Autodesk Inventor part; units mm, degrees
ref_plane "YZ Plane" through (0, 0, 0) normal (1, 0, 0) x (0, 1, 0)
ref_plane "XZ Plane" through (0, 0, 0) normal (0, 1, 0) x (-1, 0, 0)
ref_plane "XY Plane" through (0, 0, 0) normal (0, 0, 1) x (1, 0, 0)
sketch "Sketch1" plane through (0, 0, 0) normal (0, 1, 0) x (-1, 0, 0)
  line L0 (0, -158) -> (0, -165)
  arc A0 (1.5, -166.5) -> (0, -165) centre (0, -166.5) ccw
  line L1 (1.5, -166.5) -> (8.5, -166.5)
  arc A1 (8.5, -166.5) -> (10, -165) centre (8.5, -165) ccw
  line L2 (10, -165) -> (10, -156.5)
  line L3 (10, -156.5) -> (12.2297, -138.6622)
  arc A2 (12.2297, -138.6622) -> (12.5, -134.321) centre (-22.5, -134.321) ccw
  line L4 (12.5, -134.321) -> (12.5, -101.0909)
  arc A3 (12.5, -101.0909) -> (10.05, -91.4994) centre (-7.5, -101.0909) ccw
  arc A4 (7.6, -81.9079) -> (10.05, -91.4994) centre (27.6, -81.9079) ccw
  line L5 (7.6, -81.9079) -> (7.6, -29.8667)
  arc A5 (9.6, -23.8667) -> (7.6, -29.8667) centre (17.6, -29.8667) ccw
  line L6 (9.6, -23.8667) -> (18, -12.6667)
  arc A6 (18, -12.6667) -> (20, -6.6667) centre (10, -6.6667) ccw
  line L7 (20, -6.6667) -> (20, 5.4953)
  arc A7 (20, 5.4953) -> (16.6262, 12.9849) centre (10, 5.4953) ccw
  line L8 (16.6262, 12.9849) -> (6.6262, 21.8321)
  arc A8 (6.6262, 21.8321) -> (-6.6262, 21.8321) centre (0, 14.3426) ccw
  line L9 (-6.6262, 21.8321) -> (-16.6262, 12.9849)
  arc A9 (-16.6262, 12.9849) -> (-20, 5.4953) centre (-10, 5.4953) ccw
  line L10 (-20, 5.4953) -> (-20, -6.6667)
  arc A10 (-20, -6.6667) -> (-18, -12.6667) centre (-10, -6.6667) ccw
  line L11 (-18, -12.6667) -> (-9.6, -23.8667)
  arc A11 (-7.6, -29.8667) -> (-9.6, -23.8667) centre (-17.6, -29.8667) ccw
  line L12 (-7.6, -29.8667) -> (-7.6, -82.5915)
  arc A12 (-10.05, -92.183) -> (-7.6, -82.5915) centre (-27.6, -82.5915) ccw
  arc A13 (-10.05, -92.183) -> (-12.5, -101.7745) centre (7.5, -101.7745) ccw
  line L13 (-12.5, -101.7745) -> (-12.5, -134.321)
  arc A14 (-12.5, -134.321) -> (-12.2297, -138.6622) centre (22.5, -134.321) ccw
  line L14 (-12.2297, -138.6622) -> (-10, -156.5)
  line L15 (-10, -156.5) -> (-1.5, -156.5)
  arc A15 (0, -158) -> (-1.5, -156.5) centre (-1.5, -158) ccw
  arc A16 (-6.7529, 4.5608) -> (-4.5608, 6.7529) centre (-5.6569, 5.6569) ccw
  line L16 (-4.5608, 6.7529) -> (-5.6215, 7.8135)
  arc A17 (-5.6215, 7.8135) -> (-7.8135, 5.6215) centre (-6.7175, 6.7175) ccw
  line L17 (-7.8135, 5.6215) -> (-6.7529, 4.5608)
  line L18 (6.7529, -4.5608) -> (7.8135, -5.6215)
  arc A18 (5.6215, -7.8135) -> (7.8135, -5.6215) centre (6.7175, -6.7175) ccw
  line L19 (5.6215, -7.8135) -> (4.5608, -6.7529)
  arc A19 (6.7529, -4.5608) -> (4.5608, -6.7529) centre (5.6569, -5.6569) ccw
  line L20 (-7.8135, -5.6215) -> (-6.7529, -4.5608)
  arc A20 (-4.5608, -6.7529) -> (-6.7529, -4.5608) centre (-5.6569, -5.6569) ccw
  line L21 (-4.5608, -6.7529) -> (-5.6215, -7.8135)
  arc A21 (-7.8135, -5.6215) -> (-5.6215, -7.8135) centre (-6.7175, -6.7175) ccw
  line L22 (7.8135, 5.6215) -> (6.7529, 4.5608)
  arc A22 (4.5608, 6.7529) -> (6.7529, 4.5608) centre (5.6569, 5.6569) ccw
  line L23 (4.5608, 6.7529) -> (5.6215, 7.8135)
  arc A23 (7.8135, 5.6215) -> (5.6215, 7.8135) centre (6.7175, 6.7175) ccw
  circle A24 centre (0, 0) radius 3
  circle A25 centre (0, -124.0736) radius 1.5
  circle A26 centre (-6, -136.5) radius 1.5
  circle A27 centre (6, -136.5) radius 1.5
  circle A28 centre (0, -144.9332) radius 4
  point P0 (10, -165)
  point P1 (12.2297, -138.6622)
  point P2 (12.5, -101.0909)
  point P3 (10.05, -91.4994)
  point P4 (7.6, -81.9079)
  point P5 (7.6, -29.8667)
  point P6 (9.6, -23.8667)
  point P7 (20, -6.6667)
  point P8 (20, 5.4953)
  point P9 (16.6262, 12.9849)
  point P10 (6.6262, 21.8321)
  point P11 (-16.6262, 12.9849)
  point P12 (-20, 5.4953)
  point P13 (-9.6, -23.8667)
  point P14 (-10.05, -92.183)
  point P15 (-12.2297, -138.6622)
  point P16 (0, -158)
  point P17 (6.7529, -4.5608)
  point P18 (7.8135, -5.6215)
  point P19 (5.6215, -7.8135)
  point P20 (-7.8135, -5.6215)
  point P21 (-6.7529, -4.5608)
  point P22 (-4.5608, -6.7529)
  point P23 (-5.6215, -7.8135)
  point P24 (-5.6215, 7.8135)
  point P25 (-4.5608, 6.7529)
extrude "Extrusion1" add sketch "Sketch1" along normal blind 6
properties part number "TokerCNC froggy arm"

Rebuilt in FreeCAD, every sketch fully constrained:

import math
import FreeCAD as App
import Part
import Sketcher
from FreeCAD import Vector
Q = App.Units.Quantity

doc = App.newDocument("Part")
body = doc.addObject("PartDesign::Body", "Body")

# Sketch on XZ plane
sketch1 = body.newObject("Sketcher::SketchObject", "Sketch")
sketch1.AttachmentSupport = (doc.getObject("XZ_Plane"), [""])
sketch1.MapMode = "FlatFace"
sketch1.addGeometry([
    Part.ArcOfCircle(Part.Circle(Vector(1.5, -158, 0), Vector(0, 0, 1), 1.5), math.radians(90), math.radians(180)),  # 0
    Part.LineSegment(Vector(0, -158, 0), Vector(0, -165, 0)),  # 1
    Part.ArcOfCircle(Part.Circle(Vector(0, -166.5, 0), Vector(0, 0, 1), 1.5), math.radians(90), math.radians(180)),  # 2
    Part.LineSegment(Vector(-1.5, -166.5, 0), Vector(-8.5, -166.5, 0)),  # 3
    Part.ArcOfCircle(Part.Circle(Vector(-8.5, -165, 0), Vector(0, 0, 1), 1.5), math.radians(180), math.radians(270)),  # 4
    Part.LineSegment(Vector(-10, -165, 0), Vector(-10, -156.5, 0)),  # 5
    Part.LineSegment(Vector(-10, -156.5, 0), Vector(-12.2297, -138.6622, 0)),  # 6
    Part.ArcOfCircle(Part.Circle(Vector(22.507073, -134.320338, 0), Vector(0, 0, 1), 35.007073), math.radians(-179.998917), math.radians(-172.875365)),  # 7
    Part.LineSegment(Vector(-12.5, -134.321, 0), Vector(-12.5, -101.0909, 0)),  # 8
    Part.ArcOfCircle(Part.Circle(Vector(7.5, -101.0909, 0), Vector(0, 0, 1), 20), math.radians(151.342327), math.radians(180)),  # 9
    Part.ArcOfCircle(Part.Circle(Vector(-27.6, -81.9079, 0), Vector(0, 0, 1), 20), math.radians(-28.657673), math.radians(0)),  # 10
    Part.LineSegment(Vector(-7.6, -81.9079, 0), Vector(-7.6, -29.8667, 0)),  # 11
    Part.ArcOfCircle(Part.Circle(Vector(-17.6, -29.8667, 0), Vector(0, 0, 1), 10), math.radians(0), math.radians(36.869898)),  # 12
    Part.LineSegment(Vector(-9.6, -23.8667, 0), Vector(-18, -12.6667, 0)),  # 13
    Part.ArcOfCircle(Part.Circle(Vector(-10, -6.6667, 0), Vector(0, 0, 1), 10), math.radians(180), math.radians(216.869898)),  # 14
    Part.LineSegment(Vector(-20, -6.6667, 0), Vector(-20, 5.4953, 0)),  # 15
    Part.ArcOfCircle(Part.Circle(Vector(-10, 5.4953, 0), Vector(0, 0, 1), 10), math.radians(131.499835), math.radians(180)),  # 16
    Part.LineSegment(Vector(-16.6262, 12.9849, 0), Vector(-6.6262, 21.8321, 0)),  # 17
    Part.ArcOfCircle(Part.Circle(Vector(0, 14.3426, 0), Vector(0, 0, 1), 9.999957), math.radians(48.499785), math.radians(131.500215)),  # 18
    Part.LineSegment(Vector(6.6262, 21.8321, 0), Vector(16.6262, 12.9849, 0)),  # 19
    Part.ArcOfCircle(Part.Circle(Vector(10, 5.4953, 0), Vector(0, 0, 1), 10.000032), math.radians(0), math.radians(48.500165)),  # 20
    Part.LineSegment(Vector(20, 5.4953, 0), Vector(20, -6.6667, 0)),  # 21
    Part.ArcOfCircle(Part.Circle(Vector(10, -6.6667, 0), Vector(0, 0, 1), 10), math.radians(-36.869898), math.radians(0)),  # 22
    Part.LineSegment(Vector(18, -12.6667, 0), Vector(9.6, -23.8667, 0)),  # 23
    Part.ArcOfCircle(Part.Circle(Vector(17.6, -29.8667, 0), Vector(0, 0, 1), 10), math.radians(143.130102), math.radians(180)),  # 24
    Part.LineSegment(Vector(7.6, -29.8667, 0), Vector(7.6, -82.5915, 0)),  # 25
    Part.ArcOfCircle(Part.Circle(Vector(27.6, -82.5915, 0), Vector(0, 0, 1), 19.999984), math.radians(180), math.radians(208.657673)),  # 26
    Part.ArcOfCircle(Part.Circle(Vector(-7.5, -101.7745, 0), Vector(0, 0, 1), 19.999984), math.radians(0), math.radians(28.657673)),  # 27
    Part.LineSegment(Vector(12.5, -101.7745, 0), Vector(12.5, -134.321, 0)),  # 28
    Part.ArcOfCircle(Part.Circle(Vector(-22.492903, -134.321221, 0), Vector(0, 0, 1), 34.992903), math.radians(-7.126079), math.radians(0.000361)),  # 29
    Part.LineSegment(Vector(12.2297, -138.6622, 0), Vector(10, -156.5, 0)),  # 30
    Part.LineSegment(Vector(10, -156.5, 0), Vector(1.5, -156.5, 0)),  # 31
    Part.Circle(Vector(6, -136.5, 0), Vector(0, 0, 1), 1.5),  # 32
    Part.Circle(Vector(0, -144.9332, 0), Vector(0, 0, 1), 4),  # 33
    Part.Circle(Vector(0, -124.0736, 0), Vector(0, 0, 1), 1.5),  # 34
    Part.Circle(Vector(-6, -136.5, 0), Vector(0, 0, 1), 1.5),  # 35
    Part.ArcOfCircle(Part.Circle(Vector(6.7175, -6.7175, 0), Vector(0, 0, 1), 1.549978), math.radians(-135), math.radians(45)),  # 36
    Part.LineSegment(Vector(7.8135, -5.6215, 0), Vector(6.7529, -4.5608, 0)),  # 37
    Part.ArcOfCircle(Part.Circle(Vector(5.6569, -5.6569, 0), Vector(0, 0, 1), 1.550049), math.radians(45.002614), math.radians(224.997386)),  # 38
    Part.LineSegment(Vector(4.5608, -6.7529, 0), Vector(5.6215, -7.8135, 0)),  # 39
    Part.ArcOfCircle(Part.Circle(Vector(5.6569, 5.6569, 0), Vector(0, 0, 1), 1.550049), math.radians(135.002614), math.radians(314.997386)),  # 40
    Part.LineSegment(Vector(6.7529, 4.5608, 0), Vector(7.8135, 5.6215, 0)),  # 41
    Part.ArcOfCircle(Part.Circle(Vector(6.7175, 6.7175, 0), Vector(0, 0, 1), 1.549978), math.radians(-45), math.radians(135)),  # 42
    Part.LineSegment(Vector(5.6215, 7.8135, 0), Vector(4.5608, 6.7529, 0)),  # 43
    Part.Circle(Vector(0, 0, 0), Vector(0, 0, 1), 3),  # 44
    Part.ArcOfCircle(Part.Circle(Vector(-5.6569, -5.6569, 0), Vector(0, 0, 1), 1.550049), math.radians(-44.997386), math.radians(134.997386)),  # 45
    Part.LineSegment(Vector(-6.7529, -4.5608, 0), Vector(-7.8135, -5.6215, 0)),  # 46
    Part.ArcOfCircle(Part.Circle(Vector(-6.7175, -6.7175, 0), Vector(0, 0, 1), 1.549978), math.radians(135), math.radians(315)),  # 47
    Part.LineSegment(Vector(-5.6215, -7.8135, 0), Vector(-4.5608, -6.7529, 0)),  # 48
    Part.ArcOfCircle(Part.Circle(Vector(-6.7175, 6.7175, 0), Vector(0, 0, 1), 1.549978), math.radians(45), math.radians(225)),  # 49
    Part.LineSegment(Vector(-7.8135, 5.6215, 0), Vector(-6.7529, 4.5608, 0)),  # 50
    Part.ArcOfCircle(Part.Circle(Vector(-5.6569, 5.6569, 0), Vector(0, 0, 1), 1.550049), math.radians(-134.997386), math.radians(44.997386)),  # 51
    Part.LineSegment(Vector(-4.5608, 6.7529, 0), Vector(-5.6215, 7.8135, 0)),  # 52
], False)
sketch1.addConstraint([
    Sketcher.Constraint("Coincident", 0, 2, 1, 1),
    Sketcher.Constraint("Coincident", 1, 2, 2, 1),
    Sketcher.Constraint("Coincident", 2, 2, 3, 1),
    Sketcher.Constraint("Coincident", 3, 2, 4, 2),
    Sketcher.Constraint("Coincident", 4, 1, 5, 1),
    Sketcher.Constraint("Coincident", 5, 2, 6, 1),
    Sketcher.Constraint("Coincident", 6, 2, 7, 2),
    Sketcher.Constraint("Coincident", 7, 1, 8, 1),
    Sketcher.Constraint("Coincident", 8, 2, 9, 2),
    Sketcher.Constraint("Coincident", 9, 1, 10, 1),
    Sketcher.Constraint("Coincident", 10, 2, 11, 1),
    Sketcher.Constraint("Coincident", 11, 2, 12, 1),
    Sketcher.Constraint("Coincident", 12, 2, 13, 1),
    Sketcher.Constraint("Coincident", 13, 2, 14, 2),
    Sketcher.Constraint("Coincident", 14, 1, 15, 1),
    Sketcher.Constraint("Coincident", 15, 2, 16, 2),
    Sketcher.Constraint("Coincident", 16, 1, 17, 1),
    Sketcher.Constraint("Coincident", 17, 2, 18, 2),
    Sketcher.Constraint("Coincident", 18, 1, 19, 1),
    Sketcher.Constraint("Coincident", 19, 2, 20, 2),
    Sketcher.Constraint("Coincident", 20, 1, 21, 1),
    Sketcher.Constraint("Coincident", 21, 2, 22, 2),
    Sketcher.Constraint("Coincident", 22, 1, 23, 1),
    Sketcher.Constraint("Coincident", 23, 2, 24, 1),
    Sketcher.Constraint("Coincident", 24, 2, 25, 1),
    Sketcher.Constraint("Coincident", 25, 2, 26, 1),
    Sketcher.Constraint("Coincident", 26, 2, 27, 2),
    Sketcher.Constraint("Coincident", 27, 1, 28, 1),
    Sketcher.Constraint("Coincident", 28, 2, 29, 2),
    Sketcher.Constraint("Coincident", 29, 1, 30, 1),
    Sketcher.Constraint("Coincident", 30, 2, 31, 1),
    Sketcher.Constraint("Coincident", 31, 2, 0, 1),
    Sketcher.Constraint("Coincident", 36, 2, 37, 1),
    Sketcher.Constraint("Coincident", 37, 2, 38, 1),
    Sketcher.Constraint("Coincident", 38, 2, 39, 1),
    Sketcher.Constraint("Coincident", 39, 2, 36, 1),
    Sketcher.Constraint("Coincident", 40, 2, 41, 1),
    Sketcher.Constraint("Coincident", 41, 2, 42, 1),
    Sketcher.Constraint("Coincident", 42, 2, 43, 1),
    Sketcher.Constraint("Coincident", 43, 2, 40, 1),
    Sketcher.Constraint("Coincident", 45, 2, 46, 1),
    Sketcher.Constraint("Coincident", 46, 2, 47, 1),
    Sketcher.Constraint("Coincident", 47, 2, 48, 1),
    Sketcher.Constraint("Coincident", 48, 2, 45, 1),
    Sketcher.Constraint("Coincident", 49, 2, 50, 1),
    Sketcher.Constraint("Coincident", 50, 2, 51, 1),
    Sketcher.Constraint("Coincident", 51, 2, 52, 1),
    Sketcher.Constraint("Coincident", 52, 2, 49, 1),
    Sketcher.Constraint("Vertical", 1),
    Sketcher.Constraint("Horizontal", 3),
    Sketcher.Constraint("Vertical", 5),
    Sketcher.Constraint("Vertical", 8),
    Sketcher.Constraint("Vertical", 11),
    Sketcher.Constraint("Vertical", 15),
    Sketcher.Constraint("Vertical", 21),
    Sketcher.Constraint("Vertical", 25),
    Sketcher.Constraint("Vertical", 28),
    Sketcher.Constraint("Horizontal", 31),
    Sketcher.Constraint("Coincident", 44, 3, -1, 1),
    Sketcher.Constraint("PointOnObject", 2, 3, -2),
    Sketcher.Constraint("PointOnObject", 18, 3, -2),
    Sketcher.Constraint("PointOnObject", 33, 3, -2),
    Sketcher.Constraint("PointOnObject", 34, 3, -2),
    Sketcher.Constraint("PointOnObject", 0, 2, -2),
    Sketcher.Constraint("Diameter", 32, Q("3 mm")),
    Sketcher.Constraint("Diameter", 33, Q("8 mm")),
    Sketcher.Constraint("Diameter", 34, Q("3 mm")),
    Sketcher.Constraint("Diameter", 35, Q("3 mm")),
    Sketcher.Constraint("Diameter", 44, Q("6 mm")),
    Sketcher.Constraint("Radius", 9, Q("20 mm")),
    Sketcher.Constraint("Radius", 10, Q("20 mm")),
    Sketcher.Constraint("Radius", 12, Q("10 mm")),
    Sketcher.Constraint("Radius", 14, Q("10 mm")),
    Sketcher.Constraint("Radius", 16, Q("10 mm")),
    Sketcher.Constraint("Radius", 18, Q("10 mm")),
    Sketcher.Constraint("Radius", 20, Q("10 mm")),
    Sketcher.Constraint("Radius", 22, Q("10 mm")),
    Sketcher.Constraint("Radius", 24, Q("10 mm")),
    Sketcher.Constraint("Radius", 26, Q("20 mm")),
    Sketcher.Constraint("Radius", 27, Q("20 mm")),
    Sketcher.Constraint("Radius", 0, Q("1.5 mm")),
    Sketcher.Constraint("Radius", 2, Q("1.5 mm")),
    Sketcher.Constraint("Radius", 4, Q("1.5 mm")),
    Sketcher.Constraint("DistanceX", 3, 2, 3, 1, Q("7 mm")),
    Sketcher.Constraint("DistanceY", 1, 2, 1, 1, Q("7 mm")),
    Sketcher.Constraint("Radius", 36, Q("1.55 mm")),
    Sketcher.Constraint("Radius", 38, Q("1.55 mm")),
    Sketcher.Constraint("Radius", 40, Q("1.55 mm")),
    Sketcher.Constraint("Radius", 42, Q("1.55 mm")),
    Sketcher.Constraint("Radius", 45, Q("1.55 mm")),
    Sketcher.Constraint("Radius", 47, Q("1.55 mm")),
    Sketcher.Constraint("Radius", 49, Q("1.55 mm")),
    Sketcher.Constraint("Radius", 51, Q("1.55 mm")),
    Sketcher.Constraint("Distance", 13, Q("14 mm")),
    Sketcher.Constraint("Distance", 23, Q("14 mm")),
    Sketcher.Constraint("DistanceX", 31, 2, 31, 1, Q("8.5 mm")),
    Sketcher.Constraint("DistanceY", 5, 1, 5, 2, Q("8.5 mm")),
    Sketcher.Constraint("DistanceY", 0, 3, -1, 1, Q("158 mm")),
    Sketcher.Constraint("DistanceY", 4, 3, -1, 1, Q("165 mm")),
    Sketcher.Constraint("DistanceX", 14, 3, -1, 1, Q("10 mm")),
    Sketcher.Constraint("DistanceX", -1, 1, 20, 3, Q("10 mm")),
    Sketcher.Constraint("DistanceX", -1, 1, 32, 3, Q("6 mm")),
    Sketcher.Constraint("DistanceX", 35, 3, -1, 1, Q("6 mm")),
    Sketcher.Constraint("DistanceY", 0, 2, -1, 1, Q("158 mm")),
    Sketcher.Constraint("DistanceX", 4, 1, -1, 1, Q("10 mm")),
    Sketcher.Constraint("DistanceY", 4, 1, -1, 1, Q("165 mm")),
    Sketcher.Constraint("DistanceX", 13, 2, -1, 1, Q("18 mm")),
    Sketcher.Constraint("DistanceX", -1, 1, 22, 1, Q("18 mm")),
    Sketcher.Constraint("DistanceX", -1, 1, 30, 2, Q("10 mm")),
    Sketcher.Constraint("Radius", 7, Q("35.007 mm")),
    Sketcher.Constraint("Radius", 29, Q("34.993 mm")),
    Sketcher.Constraint("Distance", 37, Q("1.5 mm")),
    Sketcher.Constraint("Distance", 39, Q("1.5 mm")),
    Sketcher.Constraint("Distance", 41, Q("1.5 mm")),
    Sketcher.Constraint("Distance", 43, Q("1.5 mm")),
    Sketcher.Constraint("Distance", 46, Q("1.5 mm")),
    Sketcher.Constraint("Distance", 48, Q("1.5 mm")),
    Sketcher.Constraint("Distance", 50, Q("1.5 mm")),
    Sketcher.Constraint("Distance", 52, Q("1.5 mm")),
    Sketcher.Constraint("DistanceY", 8, 1, 8, 2, Q("33.23 mm")),
    Sketcher.Constraint("DistanceX", -1, 1, 9, 3, Q("7.5 mm")),
    Sketcher.Constraint("DistanceX", 10, 3, -1, 1, Q("27.6 mm")),
    Sketcher.Constraint("DistanceX", -1, 1, 24, 3, Q("17.6 mm")),
    Sketcher.Constraint("DistanceX", 27, 3, -1, 1, Q("7.5 mm")),
    Sketcher.Constraint("DistanceY", 32, 3, -1, 1, Q("136.5 mm")),
    Sketcher.Constraint("DistanceY", 35, 3, -1, 1, Q("136.5 mm")),
    Sketcher.Constraint("DistanceX", 12, 2, -1, 1, Q("9.6 mm")),
    Sketcher.Constraint("DistanceX", -1, 1, 23, 2, Q("9.6 mm")),
    Sketcher.Constraint("DistanceY", 15, 1, 15, 2, Q("12.162 mm")),
    Sketcher.Constraint("DistanceY", 21, 2, 21, 1, Q("12.162 mm")),
    Sketcher.Constraint("DistanceX", 9, 1, -1, 1, Q("10.05 mm")),
    Sketcher.Constraint("DistanceX", -1, 1, 26, 2, Q("10.05 mm")),
    Sketcher.Constraint("Distance", 17, Q("13.352 mm")),
    Sketcher.Constraint("Distance", 19, Q("13.352 mm")),
    Sketcher.Constraint("DistanceY", 11, 1, 11, 2, Q("52.0412 mm")),
    Sketcher.Constraint("DistanceY", 25, 2, 25, 1, Q("52.7248 mm")),
    Sketcher.Constraint("DistanceY", 28, 2, 28, 1, Q("32.5465 mm")),
    Sketcher.Constraint("DistanceY", 9, 3, -1, 1, Q("101.091 mm")),
    Sketcher.Constraint("DistanceX", -1, 1, 38, 3, Q("5.657 mm")),
    Sketcher.Constraint("DistanceY", 38, 3, -1, 1, Q("5.657 mm")),
    Sketcher.Constraint("DistanceX", -1, 1, 40, 3, Q("5.657 mm")),
    Sketcher.Constraint("DistanceY", -1, 1, 40, 3, Q("5.657 mm")),
    Sketcher.Constraint("DistanceX", 45, 3, -1, 1, Q("5.657 mm")),
    Sketcher.Constraint("DistanceY", 45, 3, -1, 1, Q("5.657 mm")),
    Sketcher.Constraint("DistanceX", 51, 3, -1, 1, Q("5.657 mm")),
    Sketcher.Constraint("DistanceY", -1, 1, 51, 3, Q("5.657 mm")),
    Sketcher.Constraint("DistanceY", 7, 1, -1, 1, Q("134.321 mm")),
    Sketcher.Constraint("DistanceY", 10, 2, -1, 1, Q("81.908 mm")),
    Sketcher.Constraint("DistanceY", -1, 1, 17, 2, Q("21.832 mm")),
    Sketcher.Constraint("DistanceY", -1, 1, 18, 1, Q("21.832 mm")),
    Sketcher.Constraint("DistanceY", -1, 1, 19, 2, Q("12.985 mm")),
    Sketcher.Constraint("DistanceY", 26, 2, -1, 1, Q("92.183 mm")),
    Sketcher.Constraint("DistanceY", 28, 2, -1, 1, Q("134.321 mm")),
    Sketcher.Constraint("DistanceX", -1, 1, 37, 2, Q("6.753 mm")),
    Sketcher.Constraint("DistanceY", 38, 2, -1, 1, Q("6.753 mm")),
    Sketcher.Constraint("DistanceX", -1, 1, 40, 2, Q("6.753 mm")),
    Sketcher.Constraint("DistanceY", -1, 1, 43, 2, Q("6.753 mm")),
    Sketcher.Constraint("DistanceX", 45, 2, -1, 1, Q("6.753 mm")),
    Sketcher.Constraint("DistanceY", 48, 2, -1, 1, Q("6.753 mm")),
    Sketcher.Constraint("DistanceX", 50, 2, -1, 1, Q("6.753 mm")),
    Sketcher.Constraint("DistanceY", -1, 1, 51, 2, Q("6.753 mm")),
    Sketcher.Constraint("Distance", 6, Q("17.9766 mm")),
    Sketcher.Constraint("Distance", 30, Q("17.9766 mm")),
    Sketcher.Constraint("DistanceY", 7, 3, -1, 1, Q("134.3203 mm")),
    Sketcher.Constraint("DistanceY", 12, 3, -1, 1, Q("29.8667 mm")),
    Sketcher.Constraint("DistanceY", -1, 1, 16, 3, Q("5.4953 mm")),
    Sketcher.Constraint("DistanceY", -1, 1, 18, 3, Q("14.3426 mm")),
    Sketcher.Constraint("DistanceY", 22, 3, -1, 1, Q("6.6667 mm")),
    Sketcher.Constraint("DistanceY", 29, 3, -1, 1, Q("134.3212 mm")),
    Sketcher.Constraint("DistanceY", 33, 3, -1, 1, Q("144.9332 mm")),
    Sketcher.Constraint("DistanceY", 34, 3, -1, 1, Q("124.0736 mm")),
    Sketcher.Constraint("DistanceX", -1, 1, 36, 3, Q("6.7175 mm")),
    Sketcher.Constraint("DistanceY", 36, 3, -1, 1, Q("6.7175 mm")),
    Sketcher.Constraint("DistanceX", -1, 1, 42, 3, Q("6.7175 mm")),
    Sketcher.Constraint("DistanceY", -1, 1, 42, 3, Q("6.7175 mm")),
    Sketcher.Constraint("DistanceX", 47, 3, -1, 1, Q("6.7175 mm")),
    Sketcher.Constraint("DistanceY", 47, 3, -1, 1, Q("6.7175 mm")),
    Sketcher.Constraint("DistanceX", 49, 3, -1, 1, Q("6.7175 mm")),
    Sketcher.Constraint("DistanceY", -1, 1, 49, 3, Q("6.7175 mm")),
    Sketcher.Constraint("DistanceY", 14, 1, -1, 1, Q("6.6667 mm")),
    Sketcher.Constraint("DistanceY", -1, 1, 20, 1, Q("5.4953 mm")),
    Sketcher.Constraint("DistanceY", 24, 2, -1, 1, Q("29.8667 mm")),
])
pad1 = body.newObject("PartDesign::Pad", "Pad")
pad1.Profile = sketch1
pad1.Length = 6
pad1.Reversed = True

doc.recompute()
